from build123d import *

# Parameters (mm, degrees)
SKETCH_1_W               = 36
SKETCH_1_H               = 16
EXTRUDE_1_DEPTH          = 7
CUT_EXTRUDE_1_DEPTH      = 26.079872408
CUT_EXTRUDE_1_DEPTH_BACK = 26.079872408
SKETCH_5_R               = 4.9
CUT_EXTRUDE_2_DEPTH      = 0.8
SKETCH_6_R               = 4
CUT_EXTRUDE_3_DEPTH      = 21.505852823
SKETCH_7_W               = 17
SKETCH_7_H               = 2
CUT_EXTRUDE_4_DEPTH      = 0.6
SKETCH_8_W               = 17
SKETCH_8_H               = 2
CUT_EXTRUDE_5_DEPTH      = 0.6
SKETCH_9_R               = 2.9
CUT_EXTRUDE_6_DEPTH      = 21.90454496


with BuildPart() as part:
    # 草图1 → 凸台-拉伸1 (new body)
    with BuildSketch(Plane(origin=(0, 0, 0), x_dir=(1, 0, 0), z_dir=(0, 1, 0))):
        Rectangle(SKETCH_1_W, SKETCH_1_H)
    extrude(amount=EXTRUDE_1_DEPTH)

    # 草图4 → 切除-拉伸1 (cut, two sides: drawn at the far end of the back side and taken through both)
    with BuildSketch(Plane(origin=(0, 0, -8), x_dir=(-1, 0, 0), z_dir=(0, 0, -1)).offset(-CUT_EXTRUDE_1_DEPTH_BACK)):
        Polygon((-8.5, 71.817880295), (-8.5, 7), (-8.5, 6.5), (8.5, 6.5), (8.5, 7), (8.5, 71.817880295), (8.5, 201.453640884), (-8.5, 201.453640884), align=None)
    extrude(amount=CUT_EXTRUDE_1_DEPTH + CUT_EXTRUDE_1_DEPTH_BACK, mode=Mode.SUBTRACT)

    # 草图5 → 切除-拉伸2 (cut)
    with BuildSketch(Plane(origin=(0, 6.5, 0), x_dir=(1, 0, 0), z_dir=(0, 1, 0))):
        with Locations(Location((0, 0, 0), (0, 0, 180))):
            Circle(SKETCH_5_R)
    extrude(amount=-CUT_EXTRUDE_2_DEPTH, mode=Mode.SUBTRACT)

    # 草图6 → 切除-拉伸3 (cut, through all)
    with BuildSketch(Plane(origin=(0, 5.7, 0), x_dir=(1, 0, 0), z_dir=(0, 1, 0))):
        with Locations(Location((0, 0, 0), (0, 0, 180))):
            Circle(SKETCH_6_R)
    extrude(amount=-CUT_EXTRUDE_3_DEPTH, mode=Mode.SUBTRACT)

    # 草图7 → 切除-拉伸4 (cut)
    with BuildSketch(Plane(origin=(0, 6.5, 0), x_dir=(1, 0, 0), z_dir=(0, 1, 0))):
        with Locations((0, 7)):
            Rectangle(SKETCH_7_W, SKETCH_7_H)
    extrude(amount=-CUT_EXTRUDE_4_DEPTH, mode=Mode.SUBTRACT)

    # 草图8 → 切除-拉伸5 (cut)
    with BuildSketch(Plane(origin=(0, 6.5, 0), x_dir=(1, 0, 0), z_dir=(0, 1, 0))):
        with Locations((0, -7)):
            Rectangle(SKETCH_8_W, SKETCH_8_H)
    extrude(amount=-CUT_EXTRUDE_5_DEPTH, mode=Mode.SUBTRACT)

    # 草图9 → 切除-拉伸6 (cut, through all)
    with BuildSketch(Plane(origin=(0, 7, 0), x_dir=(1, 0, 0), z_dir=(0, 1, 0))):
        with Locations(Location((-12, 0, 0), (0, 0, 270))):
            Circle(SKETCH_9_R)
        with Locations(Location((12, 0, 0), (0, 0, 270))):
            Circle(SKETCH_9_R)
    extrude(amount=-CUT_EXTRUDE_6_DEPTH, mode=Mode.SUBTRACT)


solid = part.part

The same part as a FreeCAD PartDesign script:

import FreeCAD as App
import Part
import Sketcher
from FreeCAD import Vector
Q = App.Units.Quantity

doc = App.newDocument("Part")
body = doc.addObject("PartDesign::Body", "Body")

# Sketch on XZ plane
sketch1 = body.newObject("Sketcher::SketchObject", "Sketch")
sketch1.AttachmentSupport = (doc.getObject("XZ_Plane"), [""])
sketch1.MapMode = "FlatFace"
sketch1.addGeometry(Part.LineSegment(Vector(-18, -8, 0), Vector(-18, 8, 0)), False)
sketch1.addGeometry(Part.LineSegment(Vector(-18, 8, 0), Vector(18, 8, 0)), False)
sketch1.addGeometry(Part.LineSegment(Vector(18, 8, 0), Vector(18, -8, 0)), False)
sketch1.addGeometry(Part.LineSegment(Vector(18, -8, 0), Vector(-18, -8, 0)), False)
sketch1.addConstraint(Sketcher.Constraint("Coincident", 0, 2, 1, 1))
sketch1.addConstraint(Sketcher.Constraint("Coincident", 1, 2, 2, 1))
sketch1.addConstraint(Sketcher.Constraint("Coincident", 2, 2, 3, 1))
sketch1.addConstraint(Sketcher.Constraint("Coincident", 3, 2, 0, 1))
sketch1.addConstraint(Sketcher.Constraint("Vertical", 0))
sketch1.addConstraint(Sketcher.Constraint("Horizontal", 1))
sketch1.addConstraint(Sketcher.Constraint("Vertical", 2))
sketch1.addConstraint(Sketcher.Constraint("Horizontal", 3))
sketch1.addConstraint(Sketcher.Constraint("Symmetric", 0, 2, 2, 2, -1, 1))
sketch1.addConstraint(Sketcher.Constraint("DistanceX", 1, 1, 1, 2, Q("36 mm")))
sketch1.addConstraint(Sketcher.Constraint("DistanceY", 0, 1, 0, 2, Q("16 mm")))
pad1 = body.newObject("PartDesign::Pad", "Pad")
pad1.Profile = sketch1
pad1.Length = 7
pad1.Reversed = True

# Sketch on XY plane
sketch2 = body.newObject("Sketcher::SketchObject", "Sketch001")
sketch2.AttachmentSupport = (doc.getObject("XY_Plane"), [""])
sketch2.MapMode = "FlatFace"
sketch2.AttachmentOffset = App.Placement(Vector(0, 0, -8), App.Rotation())
sketch2.addGeometry(Part.LineSegment(Vector(8, 6, 0), Vector(-8, 6, 0)), False)
sketch2.addGeometry(Part.LineSegment(Vector(-8, 6, 0), Vector(-8, 201, 0)), False)
sketch2.addGeometry(Part.LineSegment(Vector(-8, 201, 0), Vector(8, 201, 0)), False)
sketch2.addGeometry(Part.LineSegment(Vector(8, 201, 0), Vector(8, 6, 0)), False)
sketch2.addConstraint(Sketcher.Constraint("Coincident", 0, 2, 1, 1))
sketch2.addConstraint(Sketcher.Constraint("Coincident", 1, 2, 2, 1))
sketch2.addConstraint(Sketcher.Constraint("Coincident", 2, 2, 3, 1))
sketch2.addConstraint(Sketcher.Constraint("Coincident", 3, 2, 0, 1))
sketch2.addConstraint(Sketcher.Constraint("Horizontal", 0))
sketch2.addConstraint(Sketcher.Constraint("Vertical", 1))
sketch2.addConstraint(Sketcher.Constraint("Horizontal", 2))
sketch2.addConstraint(Sketcher.Constraint("Vertical", 3))
sketch2.addConstraint(Sketcher.Constraint("DistanceX", 0, 2, 0, 1, Q("17 mm")))
sketch2.addConstraint(Sketcher.Constraint("DistanceX", 0, 2, -1, 1, Q("8.5 mm")))
sketch2.addConstraint(Sketcher.Constraint("DistanceY", -1, 1, 0, 2, Q("6.5 mm")))
sketch2.addConstraint(Sketcher.Constraint("DistanceY", 1, 1, 1, 2, Q("194.953641 mm")))
pocket1 = body.newObject("PartDesign::Pocket", "Pocket")
pocket1.Profile = sketch2
pocket1.Type = "ThroughAll"
pocket1.Midplane = True

# Sketch on XZ plane
sketch3 = body.newObject("Sketcher::SketchObject", "Sketch002")
sketch3.AttachmentSupport = (doc.getObject("XZ_Plane"), [""])
sketch3.MapMode = "FlatFace"
sketch3.AttachmentOffset = App.Placement(Vector(0, 0, -6.5), App.Rotation())
sketch3.addGeometry(Part.Circle(Vector(0, 0, 0), Vector(0, 0, 1), 4.9), False)
sketch3.addConstraint(Sketcher.Constraint("Coincident", 0, 3, -1, 1))
sketch3.addConstraint(Sketcher.Constraint("Diameter", 0, Q("9.8 mm")))
pocket2 = body.newObject("PartDesign::Pocket", "Pocket001")
pocket2.Profile = sketch3
pocket2.Length = 0.8
pocket2.Reversed = True

# Sketch on XZ plane
sketch4 = body.newObject("Sketcher::SketchObject", "Sketch003")
sketch4.AttachmentSupport = (doc.getObject("XZ_Plane"), [""])
sketch4.MapMode = "FlatFace"
sketch4.AttachmentOffset = App.Placement(Vector(0, 0, -5.7), App.Rotation())
sketch4.addGeometry(Part.Circle(Vector(0, 0, 0), Vector(0, 0, 1), 4), False)
sketch4.addConstraint(Sketcher.Constraint("Coincident", 0, 3, -1, 1))
sketch4.addConstraint(Sketcher.Constraint("Diameter", 0, Q("8 mm")))
pocket3 = body.newObject("PartDesign::Pocket", "Pocket002")
pocket3.Profile = sketch4
pocket3.Type = "ThroughAll"
pocket3.Reversed = True

# Sketch on XZ plane
sketch5 = body.newObject("Sketcher::SketchObject", "Sketch004")
sketch5.AttachmentSupport = (doc.getObject("XZ_Plane"), [""])
sketch5.MapMode = "FlatFace"
sketch5.AttachmentOffset = App.Placement(Vector(0, 0, -6.5), App.Rotation())
sketch5.addGeometry(Part.LineSegment(Vector(-8.5, -8, 0), Vector(-8.5, -6, 0)), False)
sketch5.addGeometry(Part.LineSegment(Vector(-8.5, -6, 0), Vector(8.5, -6, 0)), False)
sketch5.addGeometry(Part.LineSegment(Vector(8.5, -6, 0), Vector(8.5, -8, 0)), False)
sketch5.addGeometry(Part.LineSegment(Vector(8.5, -8, 0), Vector(-8.5, -8, 0)), False)
sketch5.addConstraint(Sketcher.Constraint("Coincident", 0, 2, 1, 1))
sketch5.addConstraint(Sketcher.Constraint("Coincident", 1, 2, 2, 1))
sketch5.addConstraint(Sketcher.Constraint("Coincident", 2, 2, 3, 1))
sketch5.addConstraint(Sketcher.Constraint("Coincident", 3, 2, 0, 1))
sketch5.addConstraint(Sketcher.Constraint("Vertical", 0))
sketch5.addConstraint(Sketcher.Constraint("Horizontal", 1))
sketch5.addConstraint(Sketcher.Constraint("Vertical", 2))
sketch5.addConstraint(Sketcher.Constraint("Horizontal", 3))
sketch5.addConstraint(Sketcher.Constraint("DistanceX", 1, 1, 1, 2, Q("17 mm")))
sketch5.addConstraint(Sketcher.Constraint("DistanceY", 0, 1, 0, 2, Q("2 mm")))
sketch5.addConstraint(Sketcher.Constraint("DistanceY", 0, 2, -1, 1, Q("6 mm")))
sketch5.addConstraint(Sketcher.Constraint("DistanceX", 0, 2, -1, 1, Q("8.5 mm")))
pocket4 = body.newObject("PartDesign::Pocket", "Pocket003")
pocket4.Profile = sketch5
pocket4.Length = 0.6
pocket4.Reversed = True

# Sketch on XZ plane
sketch6 = body.newObject("Sketcher::SketchObject", "Sketch005")
sketch6.AttachmentSupport = (doc.getObject("XZ_Plane"), [""])
sketch6.MapMode = "FlatFace"
sketch6.AttachmentOffset = App.Placement(Vector(0, 0, -6.5), App.Rotation())
sketch6.addGeometry(Part.LineSegment(Vector(-8.5, 6, 0), Vector(-8.5, 8, 0)), False)
sketch6.addGeometry(Part.LineSegment(Vector(-8.5, 8, 0), Vector(8.5, 8, 0)), False)
sketch6.addGeometry(Part.LineSegment(Vector(8.5, 8, 0), Vector(8.5, 6, 0)), False)
sketch6.addGeometry(Part.LineSegment(Vector(8.5, 6, 0), Vector(-8.5, 6, 0)), False)
sketch6.addConstraint(Sketcher.Constraint("Coincident", 0, 2, 1, 1))
sketch6.addConstraint(Sketcher.Constraint("Coincident", 1, 2, 2, 1))
sketch6.addConstraint(Sketcher.Constraint("Coincident", 2, 2, 3, 1))
sketch6.addConstraint(Sketcher.Constraint("Coincident", 3, 2, 0, 1))
sketch6.addConstraint(Sketcher.Constraint("Vertical", 0))
sketch6.addConstraint(Sketcher.Constraint("Horizontal", 1))
sketch6.addConstraint(Sketcher.Constraint("Vertical", 2))
sketch6.addConstraint(Sketcher.Constraint("Horizontal", 3))
sketch6.addConstraint(Sketcher.Constraint("DistanceX", 1, 1, 1, 2, Q("17 mm")))
sketch6.addConstraint(Sketcher.Constraint("DistanceY", 0, 1, 0, 2, Q("2 mm")))
sketch6.addConstraint(Sketcher.Constraint("DistanceY", -1, 1, 0, 2, Q("8 mm")))
sketch6.addConstraint(Sketcher.Constraint("DistanceX", 0, 2, -1, 1, Q("8.5 mm")))
pocket5 = body.newObject("PartDesign::Pocket", "Pocket004")
pocket5.Profile = sketch6
pocket5.Length = 0.6
pocket5.Reversed = True

# Sketch on XZ plane
sketch7 = body.newObject("Sketcher::SketchObject", "Sketch006")
sketch7.AttachmentSupport = (doc.getObject("XZ_Plane"), [""])
sketch7.MapMode = "FlatFace"
sketch7.AttachmentOffset = App.Placement(Vector(0, 0, -7), App.Rotation())
sketch7.addGeometry(Part.Circle(Vector(-12, 0, 0), Vector(0, 0, 1), 2.9), False)
sketch7.addGeometry(Part.Circle(Vector(12, 0, 0), Vector(0, 0, 1), 2.9), False)
sketch7.addConstraint(Sketcher.Constraint("Equal", 0, 1))
sketch7.addConstraint(Sketcher.Constraint("Symmetric", 0, 3, 1, 3, -1, 1))
sketch7.addConstraint(Sketcher.Constraint("PointOnObject", 0, 3, -1))
sketch7.addConstraint(Sketcher.Constraint("Diameter", 0, Q("5.8 mm")))
sketch7.addConstraint(Sketcher.Constraint("DistanceX", 0, 3, -1, 1, Q("12 mm")))
pocket6 = body.newObject("PartDesign::Pocket", "Pocket005")
pocket6.Profile = sketch7
pocket6.Type = "ThroughAll"
pocket6.Reversed = True

doc.recompute()
